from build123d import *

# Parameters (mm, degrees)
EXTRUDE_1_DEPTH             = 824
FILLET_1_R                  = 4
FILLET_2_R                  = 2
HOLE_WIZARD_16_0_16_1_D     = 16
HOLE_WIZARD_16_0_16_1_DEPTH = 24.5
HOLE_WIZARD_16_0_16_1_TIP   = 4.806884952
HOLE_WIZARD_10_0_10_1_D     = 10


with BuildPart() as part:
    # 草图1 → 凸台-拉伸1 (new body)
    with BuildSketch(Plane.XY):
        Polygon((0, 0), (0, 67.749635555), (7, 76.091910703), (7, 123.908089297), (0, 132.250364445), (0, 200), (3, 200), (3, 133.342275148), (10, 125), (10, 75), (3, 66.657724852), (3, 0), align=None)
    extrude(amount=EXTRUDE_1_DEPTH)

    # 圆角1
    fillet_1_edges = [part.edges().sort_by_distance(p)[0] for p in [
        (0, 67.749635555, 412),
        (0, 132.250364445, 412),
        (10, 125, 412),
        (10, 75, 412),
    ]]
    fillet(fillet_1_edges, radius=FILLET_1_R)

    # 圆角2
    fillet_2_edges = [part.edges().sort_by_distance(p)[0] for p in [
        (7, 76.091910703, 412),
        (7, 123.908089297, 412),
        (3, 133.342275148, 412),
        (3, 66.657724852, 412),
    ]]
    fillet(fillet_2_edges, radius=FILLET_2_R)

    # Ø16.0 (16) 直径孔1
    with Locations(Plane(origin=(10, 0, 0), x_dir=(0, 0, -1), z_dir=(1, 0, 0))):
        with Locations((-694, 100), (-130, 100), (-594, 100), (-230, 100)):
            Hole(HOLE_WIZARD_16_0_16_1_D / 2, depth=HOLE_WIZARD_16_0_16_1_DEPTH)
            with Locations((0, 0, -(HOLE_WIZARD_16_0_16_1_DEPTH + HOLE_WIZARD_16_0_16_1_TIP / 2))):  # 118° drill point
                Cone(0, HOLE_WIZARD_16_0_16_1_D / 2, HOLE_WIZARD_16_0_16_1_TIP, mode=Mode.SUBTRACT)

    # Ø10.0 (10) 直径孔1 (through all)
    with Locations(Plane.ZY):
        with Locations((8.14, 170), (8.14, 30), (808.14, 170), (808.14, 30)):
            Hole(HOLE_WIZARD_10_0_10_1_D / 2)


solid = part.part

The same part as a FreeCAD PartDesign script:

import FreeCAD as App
import Part
import Sketcher
Q = App.Units.Quantity


def edges_at(feature, points):
    """Names of the edges that pass closest to the given points."""
    edges = feature.Shape.Edges
    near = lambda p: min(range(len(edges)), key=lambda i: edges[i].distToShape(Part.Vertex(*p))[0])
    return sorted({f"Edge{near(p) + 1}" for p in points})


def add_polygon(sketch, points):
    """Adds a closed chain of lines whose ends are joined by coincident constraints."""
    first, n = sketch.GeometryCount, len(points)
    for a, b in zip(points, points[1:] + points[:1]):
        sketch.addGeometry(Part.LineSegment(App.Vector(*a, 0), App.Vector(*b, 0)), False)
    for i in range(n):
        sketch.addConstraint(Sketcher.Constraint("Coincident", first + i, 2, first + (i + 1) % n, 1))

doc = App.newDocument("Part")
body = doc.addObject("PartDesign::Body", "Body")

sketch1 = doc.addObject("Sketcher::SketchObject", "Sketch")
body.addObject(sketch1)
sketch1.AttachmentSupport = (doc.XY_Plane, [""])
sketch1.MapMode = "FlatFace"
add_polygon(sketch1, [(0, 67.7), (0, 0), (3, 0), (3, 66.7), (10, 75), (10, 125), (3, 133.3), (3, 200), (0, 200), (0, 132.3), (7, 123.9), (7, 76.1)])
sketch1.addConstraint([
    Sketcher.Constraint("Vertical", 0),
    Sketcher.Constraint("Horizontal", 1),
    Sketcher.Constraint("Vertical", 2),
    Sketcher.Constraint("Vertical", 4),
    Sketcher.Constraint("Vertical", 6),
    Sketcher.Constraint("Horizontal", 7),
    Sketcher.Constraint("Vertical", 8),
    Sketcher.Constraint("Vertical", 10),
    Sketcher.Constraint("Coincident", 0, 2, -1, 1),
    Sketcher.Constraint("PointOnObject", 7, 2, -2),
    Sketcher.Constraint("Parallel", 5, 9),
    Sketcher.Constraint("Parallel", 3, 11),
    Sketcher.Constraint("Vertical", 2, 2, 5, 2),
    Sketcher.Constraint("Equal", 2, 6),
    Sketcher.Constraint("Equal", 0, 8),
    Sketcher.Constraint("Equal", 3, 5),
    Sketcher.Constraint("Equal", 5, 9),
    Sketcher.Constraint("DistanceX", 1, 1, 1, 2, 3.0),
    Sketcher.Constraint("DistanceY", 4, 1, 4, 2, 50.0),
    Sketcher.Constraint("Angle", 3, Q("50 deg")),
    Sketcher.Constraint("DistanceX", -1, 1, 3, 2, 10.0),
    Sketcher.Constraint("DistanceY", -1, 1, 3, 2, 75.0),
    Sketcher.Constraint("DistanceY", 10, 2, 10, 1, 47.816179),
])
pad1 = doc.addObject("PartDesign::Pad", "Pad")
body.addObject(pad1)
pad1.Profile = sketch1
pad1.Length = 824
doc.recompute()

fillet = doc.addObject("PartDesign::Fillet", "Fillet")
body.addObject(fillet)
fillet.Base = (pad1, edges_at(pad1, [
    (0, 67.75, 412),
    (0, 132.25, 412),
    (10, 125, 412),
    (10, 75, 412),
]))
fillet.Radius = 4
doc.recompute()

fillet2 = doc.addObject("PartDesign::Fillet", "Fillet001")
body.addObject(fillet2)
fillet2.Base = (fillet, edges_at(fillet, [
    (7, 76.092, 412),
    (7, 123.908, 412),
    (3, 133.342, 412),
    (3, 66.658, 412),
]))
fillet2.Radius = 2

sketch2 = doc.addObject("Sketcher::SketchObject", "Sketch001")
body.addObject(sketch2)
sketch2.AttachmentSupport = (doc.YZ_Plane, [""])
sketch2.MapMode = "FlatFace"
sketch2.AttachmentOffset = App.Placement(App.Vector(0, 0, 10), App.Rotation())
sketch2.addGeometry([
    Part.Circle(App.Vector(100, 694, 0), App.Vector(0, 0, 1), 8),
    Part.Circle(App.Vector(100, 130, 0), App.Vector(0, 0, 1), 8),
    Part.Circle(App.Vector(100, 594, 0), App.Vector(0, 0, 1), 8),
    Part.Circle(App.Vector(100, 230, 0), App.Vector(0, 0, 1), 8),
], False)
sketch2.addConstraint([
    Sketcher.Constraint("Equal", 0, 1),
    Sketcher.Constraint("Equal", 1, 2),
    Sketcher.Constraint("Equal", 2, 3),
    Sketcher.Constraint("Vertical", 0, 3, 1, 3),
    Sketcher.Constraint("Vertical", 1, 3, 2, 3),
    Sketcher.Constraint("Vertical", 2, 3, 3, 3),
    Sketcher.Constraint("Diameter", 0, 16.0),
    Sketcher.Constraint("DistanceX", -1, 1, 0, 3, 100.0),
    Sketcher.Constraint("DistanceY", -1, 1, 0, 3, 694.0),
    Sketcher.Constraint("DistanceY", -1, 1, 1, 3, 130.0),
    Sketcher.Constraint("DistanceY", -1, 1, 2, 3, 594.0),
    Sketcher.Constraint("DistanceY", -1, 1, 3, 3, 230.0),
])
doc.recompute()
hole = doc.addObject("PartDesign::Hole", "Hole")
body.addObject(hole)
hole.Profile = sketch2
hole.ThreadType = "None"
hole.Diameter = 16
hole.DepthType = "Dimension"
hole.Depth = 24.5
hole.DrillPoint = "Angled"
hole.DrillPointAngle = 118

sketch3 = doc.addObject("Sketcher::SketchObject", "Sketch002")
body.addObject(sketch3)
sketch3.AttachmentSupport = (doc.YZ_Plane, [""])
sketch3.MapMode = "FlatFace"
sketch3.addGeometry([
    Part.Circle(App.Vector(170, 8, 0), App.Vector(0, 0, 1), 5),
    Part.Circle(App.Vector(30, 8, 0), App.Vector(0, 0, 1), 5),
    Part.Circle(App.Vector(170, 808, 0), App.Vector(0, 0, 1), 5),
    Part.Circle(App.Vector(30, 808, 0), App.Vector(0, 0, 1), 5),
], False)
sketch3.addConstraint([
    Sketcher.Constraint("Equal", 0, 1),
    Sketcher.Constraint("Equal", 1, 2),
    Sketcher.Constraint("Equal", 2, 3),
    Sketcher.Constraint("Horizontal", 0, 3, 1, 3),
    Sketcher.Constraint("Horizontal", 2, 3, 3, 3),
    Sketcher.Constraint("Vertical", 0, 3, 2, 3),
    Sketcher.Constraint("Vertical", 1, 3, 3, 3),
    Sketcher.Constraint("Diameter", 0, 10.0),
    Sketcher.Constraint("DistanceX", -1, 1, 0, 3, 170.0),
    Sketcher.Constraint("DistanceX", -1, 1, 1, 3, 30.0),
    Sketcher.Constraint("DistanceY", 0, 3, 2, 3, 800.0),
    Sketcher.Constraint("DistanceY", -1, 1, 0, 3, 8.14),
])
doc.recompute()
hole2 = doc.addObject("PartDesign::Hole", "Hole001")
body.addObject(hole2)
hole2.Profile = sketch3
hole2.ThreadType = "None"
hole2.Diameter = 10
hole2.DepthType = "ThroughAll"
hole2.Reversed = True

doc.recompute()
